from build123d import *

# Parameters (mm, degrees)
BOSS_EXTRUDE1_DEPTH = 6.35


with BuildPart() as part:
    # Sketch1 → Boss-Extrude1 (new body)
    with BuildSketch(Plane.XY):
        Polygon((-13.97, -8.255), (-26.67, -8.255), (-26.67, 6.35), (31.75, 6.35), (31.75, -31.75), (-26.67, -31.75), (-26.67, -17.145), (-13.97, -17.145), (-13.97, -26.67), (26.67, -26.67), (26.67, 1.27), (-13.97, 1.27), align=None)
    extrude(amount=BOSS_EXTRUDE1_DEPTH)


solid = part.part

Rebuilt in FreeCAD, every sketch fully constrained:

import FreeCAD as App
import Part
import Sketcher
from FreeCAD import Vector
Q = App.Units.Quantity

doc = App.newDocument("Part")
body = doc.addObject("PartDesign::Body", "Body")

# Sketch on XY plane
sketch1 = doc.addObject("Sketcher::SketchObject", "Sketch")
body.addObject(sketch1)
sketch1.AttachmentSupport = (doc.XY_Plane, [""])
sketch1.MapMode = "FlatFace"
sketch1.addGeometry([
    Part.LineSegment(Vector(-27, -8, 0), Vector(-14, -8, 0)),  # 0
    Part.LineSegment(Vector(-14, -8, 0), Vector(-14, 1, 0)),  # 1
    Part.LineSegment(Vector(-14, 1, 0), Vector(27, 1, 0)),  # 2
    Part.LineSegment(Vector(27, 1, 0), Vector(27, -27, 0)),  # 3
    Part.LineSegment(Vector(27, -27, 0), Vector(-14, -27, 0)),  # 4
    Part.LineSegment(Vector(-14, -27, 0), Vector(-14, -17, 0)),  # 5
    Part.LineSegment(Vector(-14, -17, 0), Vector(-27, -17, 0)),  # 6
    Part.LineSegment(Vector(-27, -17, 0), Vector(-27, -32, 0)),  # 7
    Part.LineSegment(Vector(-27, -32, 0), Vector(32, -32, 0)),  # 8
    Part.LineSegment(Vector(32, -32, 0), Vector(32, 6, 0)),  # 9
    Part.LineSegment(Vector(32, 6, 0), Vector(-27, 6, 0)),  # 10
    Part.LineSegment(Vector(-27, 6, 0), Vector(-27, -8, 0)),  # 11
], False)
sketch1.addConstraint([
    Sketcher.Constraint("Coincident", 0, 2, 1, 1),
    Sketcher.Constraint("Coincident", 1, 2, 2, 1),
    Sketcher.Constraint("Coincident", 2, 2, 3, 1),
    Sketcher.Constraint("Coincident", 3, 2, 4, 1),
    Sketcher.Constraint("Coincident", 4, 2, 5, 1),
    Sketcher.Constraint("Coincident", 5, 2, 6, 1),
    Sketcher.Constraint("Coincident", 6, 2, 7, 1),
    Sketcher.Constraint("Coincident", 7, 2, 8, 1),
    Sketcher.Constraint("Coincident", 8, 2, 9, 1),
    Sketcher.Constraint("Coincident", 9, 2, 10, 1),
    Sketcher.Constraint("Coincident", 10, 2, 11, 1),
    Sketcher.Constraint("Coincident", 11, 2, 0, 1),
    Sketcher.Constraint("Horizontal", 0),
    Sketcher.Constraint("Vertical", 1),
    Sketcher.Constraint("Horizontal", 2),
    Sketcher.Constraint("Vertical", 3),
    Sketcher.Constraint("Horizontal", 4),
    Sketcher.Constraint("Vertical", 5),
    Sketcher.Constraint("Horizontal", 6),
    Sketcher.Constraint("Vertical", 7),
    Sketcher.Constraint("Horizontal", 8),
    Sketcher.Constraint("Vertical", 9),
    Sketcher.Constraint("Horizontal", 10),
    Sketcher.Constraint("Vertical", 11),
    Sketcher.Constraint("Vertical", 1, 2, 4, 2),
    Sketcher.Constraint("Vertical", 7, 2, 10, 2),
    Sketcher.Constraint("Equal", 1, 5),
    Sketcher.Constraint("Equal", 7, 11),
    Sketcher.Constraint("DistanceX", 0, 1, 0, 2, Q("0.5 in")),
    Sketcher.Constraint("DistanceX", 2, 1, 2, 2, Q("1.6 in")),
    Sketcher.Constraint("DistanceX", 8, 1, 8, 2, Q("2.3 in")),
    Sketcher.Constraint("DistanceY", 3, 2, 3, 1, Q("1.1 in")),
    Sketcher.Constraint("DistanceY", 9, 1, 9, 2, Q("1.5 in")),
    Sketcher.Constraint("DistanceY", 1, 1, 1, 2, Q("0.375 in")),
    Sketcher.Constraint("DistanceX", 0, 2, -1, 1, Q("0.55 in")),
    Sketcher.Constraint("DistanceY", -1, 1, 1, 2, Q("0.05 in")),
])
pad1 = doc.addObject("PartDesign::Pad", "Pad")
body.addObject(pad1)
pad1.Profile = sketch1
pad1.Length = Q("0.25 in")

doc.recompute()
